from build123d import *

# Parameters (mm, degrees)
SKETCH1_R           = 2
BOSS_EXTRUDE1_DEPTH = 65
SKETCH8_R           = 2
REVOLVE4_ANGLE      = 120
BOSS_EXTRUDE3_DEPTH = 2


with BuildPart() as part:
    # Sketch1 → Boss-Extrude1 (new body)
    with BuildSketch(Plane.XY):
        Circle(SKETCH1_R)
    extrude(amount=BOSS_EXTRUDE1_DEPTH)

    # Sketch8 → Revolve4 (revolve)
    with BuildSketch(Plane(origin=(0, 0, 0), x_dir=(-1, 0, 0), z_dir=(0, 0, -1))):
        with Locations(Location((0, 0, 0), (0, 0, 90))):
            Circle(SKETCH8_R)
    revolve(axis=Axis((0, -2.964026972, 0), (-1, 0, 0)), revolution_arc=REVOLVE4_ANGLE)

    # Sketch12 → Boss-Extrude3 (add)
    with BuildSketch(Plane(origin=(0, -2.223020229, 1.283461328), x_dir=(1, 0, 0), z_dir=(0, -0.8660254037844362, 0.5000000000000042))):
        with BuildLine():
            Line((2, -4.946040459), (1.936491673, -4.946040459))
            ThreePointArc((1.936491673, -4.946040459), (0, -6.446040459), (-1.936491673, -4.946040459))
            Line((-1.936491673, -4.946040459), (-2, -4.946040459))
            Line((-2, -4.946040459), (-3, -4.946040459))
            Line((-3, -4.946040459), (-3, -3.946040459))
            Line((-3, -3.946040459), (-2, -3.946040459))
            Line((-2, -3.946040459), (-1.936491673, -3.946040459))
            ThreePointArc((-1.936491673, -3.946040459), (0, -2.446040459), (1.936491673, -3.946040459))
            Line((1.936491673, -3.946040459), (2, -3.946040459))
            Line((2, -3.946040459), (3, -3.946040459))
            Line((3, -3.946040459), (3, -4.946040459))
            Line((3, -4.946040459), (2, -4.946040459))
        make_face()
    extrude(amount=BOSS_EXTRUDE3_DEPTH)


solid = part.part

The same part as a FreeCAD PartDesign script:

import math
import FreeCAD as App
import Part
import Sketcher
from FreeCAD import Vector
Q = App.Units.Quantity

doc = App.newDocument("Part")
body = doc.addObject("PartDesign::Body", "Body")

sketch1 = body.newObject("Sketcher::SketchObject", "Sketch")
sketch1.AttachmentSupport = (doc.getObject("XY_Plane"), [""])
sketch1.MapMode = "FlatFace"
sketch1.addGeometry(Part.Circle(Vector(0, 0, 0), Vector(0, 0, 1), 2), False)
sketch1.addConstraint([
    Sketcher.Constraint("Coincident", 0, 3, -1, 1),
    Sketcher.Constraint("Diameter", 0, Q("4 mm")),
])
pad1 = body.newObject("PartDesign::Pad", "Pad")
pad1.Profile = sketch1
pad1.Length = 65

sketch2 = body.newObject("Sketcher::SketchObject", "Sketch001")
sketch2.AttachmentSupport = (doc.getObject("XY_Plane"), [""])
sketch2.MapMode = "FlatFace"
sketch2.addGeometry(Part.Circle(Vector(0, 0, 0), Vector(0, 0, 1), 2), False)
sketch2.addGeometry(Part.LineSegment(Vector(0, -2.964027, 0), Vector(-10, -2.964027, 0)), True)
sketch2.addConstraint([
    Sketcher.Constraint("Horizontal", 1),
    Sketcher.Constraint("Coincident", 0, 3, -1, 1),
    Sketcher.Constraint("PointOnObject", 1, 1, -2),
    Sketcher.Constraint("Diameter", 0, Q("4 mm")),
    Sketcher.Constraint("DistanceX", 1, 2, 1, 1, Q("10 mm")),
    Sketcher.Constraint("DistanceY", 1, 1, -1, 1, Q("2.964027 mm")),
])
revolution = body.newObject("PartDesign::Revolution", "Revolution")
revolution.Profile = sketch2
revolution.ReferenceAxis = (sketch2, ["Axis0"])
revolution.Angle = 120

sketch3 = body.newObject("Sketcher::SketchObject", "Sketch002")
sketch3.Placement = App.Placement(Vector(0, -2.22302, 1.283461), App.Rotation(Vector(1, 0, 0), Vector(0, 0.5, 0.866025404), Vector(0, -0.866025404, 0.5), "ZXY"))
sketch3.addGeometry([
    Part.ArcOfCircle(Part.Circle(Vector(0, -4.44604, 0), Vector(0, 0, 1), 2), math.radians(-165.522488), math.radians(-14.477512)),
    Part.LineSegment(Vector(1.936492, -4.94604, 0), Vector(3, -4.94604, 0)),
    Part.LineSegment(Vector(3, -4.94604, 0), Vector(3, -3.94604, 0)),
    Part.LineSegment(Vector(3, -3.94604, 0), Vector(1.936492, -3.94604, 0)),
    Part.ArcOfCircle(Part.Circle(Vector(0, -4.44604, 0), Vector(0, 0, 1), 2), math.radians(14.477512), math.radians(165.522488)),
    Part.LineSegment(Vector(-1.936492, -3.94604, 0), Vector(-3, -3.94604, 0)),
    Part.LineSegment(Vector(-3, -3.94604, 0), Vector(-3, -4.94604, 0)),
    Part.LineSegment(Vector(-3, -4.94604, 0), Vector(-1.936492, -4.94604, 0)),
], False)
sketch3.addConstraint([
    Sketcher.Constraint("Coincident", 0, 2, 1, 1),
    Sketcher.Constraint("Coincident", 1, 2, 2, 1),
    Sketcher.Constraint("Coincident", 2, 2, 3, 1),
    Sketcher.Constraint("Coincident", 3, 2, 4, 1),
    Sketcher.Constraint("Coincident", 4, 2, 5, 1),
    Sketcher.Constraint("Coincident", 5, 2, 6, 1),
    Sketcher.Constraint("Coincident", 6, 2, 7, 1),
    Sketcher.Constraint("Coincident", 7, 2, 0, 1),
    Sketcher.Constraint("Horizontal", 1),
    Sketcher.Constraint("Vertical", 2),
    Sketcher.Constraint("Horizontal", 3),
    Sketcher.Constraint("Horizontal", 5),
    Sketcher.Constraint("Vertical", 6),
    Sketcher.Constraint("Horizontal", 7),
    Sketcher.Constraint("Coincident", 4, 3, 0, 3),
    Sketcher.Constraint("Equal", 0, 4),
    Sketcher.Constraint("Symmetric", 3, 2, 4, 2, -2),
    Sketcher.Constraint("Symmetric", 1, 2, 6, 2, -2),
    Sketcher.Constraint("Vertical", 0, 2, 3, 2),
    Sketcher.Constraint("Radius", 0, Q("2 mm")),
    Sketcher.Constraint("DistanceY", 2, 1, 2, 2, Q("1 mm")),
    Sketcher.Constraint("DistanceX", -1, 1, 1, 2, Q("3 mm")),
    Sketcher.Constraint("DistanceY", 0, 3, -1, 1, Q("4.44604 mm")),
])
pad2 = body.newObject("PartDesign::Pad", "Pad001")
pad2.Profile = sketch3
pad2.Length = 2

doc.recompute()
